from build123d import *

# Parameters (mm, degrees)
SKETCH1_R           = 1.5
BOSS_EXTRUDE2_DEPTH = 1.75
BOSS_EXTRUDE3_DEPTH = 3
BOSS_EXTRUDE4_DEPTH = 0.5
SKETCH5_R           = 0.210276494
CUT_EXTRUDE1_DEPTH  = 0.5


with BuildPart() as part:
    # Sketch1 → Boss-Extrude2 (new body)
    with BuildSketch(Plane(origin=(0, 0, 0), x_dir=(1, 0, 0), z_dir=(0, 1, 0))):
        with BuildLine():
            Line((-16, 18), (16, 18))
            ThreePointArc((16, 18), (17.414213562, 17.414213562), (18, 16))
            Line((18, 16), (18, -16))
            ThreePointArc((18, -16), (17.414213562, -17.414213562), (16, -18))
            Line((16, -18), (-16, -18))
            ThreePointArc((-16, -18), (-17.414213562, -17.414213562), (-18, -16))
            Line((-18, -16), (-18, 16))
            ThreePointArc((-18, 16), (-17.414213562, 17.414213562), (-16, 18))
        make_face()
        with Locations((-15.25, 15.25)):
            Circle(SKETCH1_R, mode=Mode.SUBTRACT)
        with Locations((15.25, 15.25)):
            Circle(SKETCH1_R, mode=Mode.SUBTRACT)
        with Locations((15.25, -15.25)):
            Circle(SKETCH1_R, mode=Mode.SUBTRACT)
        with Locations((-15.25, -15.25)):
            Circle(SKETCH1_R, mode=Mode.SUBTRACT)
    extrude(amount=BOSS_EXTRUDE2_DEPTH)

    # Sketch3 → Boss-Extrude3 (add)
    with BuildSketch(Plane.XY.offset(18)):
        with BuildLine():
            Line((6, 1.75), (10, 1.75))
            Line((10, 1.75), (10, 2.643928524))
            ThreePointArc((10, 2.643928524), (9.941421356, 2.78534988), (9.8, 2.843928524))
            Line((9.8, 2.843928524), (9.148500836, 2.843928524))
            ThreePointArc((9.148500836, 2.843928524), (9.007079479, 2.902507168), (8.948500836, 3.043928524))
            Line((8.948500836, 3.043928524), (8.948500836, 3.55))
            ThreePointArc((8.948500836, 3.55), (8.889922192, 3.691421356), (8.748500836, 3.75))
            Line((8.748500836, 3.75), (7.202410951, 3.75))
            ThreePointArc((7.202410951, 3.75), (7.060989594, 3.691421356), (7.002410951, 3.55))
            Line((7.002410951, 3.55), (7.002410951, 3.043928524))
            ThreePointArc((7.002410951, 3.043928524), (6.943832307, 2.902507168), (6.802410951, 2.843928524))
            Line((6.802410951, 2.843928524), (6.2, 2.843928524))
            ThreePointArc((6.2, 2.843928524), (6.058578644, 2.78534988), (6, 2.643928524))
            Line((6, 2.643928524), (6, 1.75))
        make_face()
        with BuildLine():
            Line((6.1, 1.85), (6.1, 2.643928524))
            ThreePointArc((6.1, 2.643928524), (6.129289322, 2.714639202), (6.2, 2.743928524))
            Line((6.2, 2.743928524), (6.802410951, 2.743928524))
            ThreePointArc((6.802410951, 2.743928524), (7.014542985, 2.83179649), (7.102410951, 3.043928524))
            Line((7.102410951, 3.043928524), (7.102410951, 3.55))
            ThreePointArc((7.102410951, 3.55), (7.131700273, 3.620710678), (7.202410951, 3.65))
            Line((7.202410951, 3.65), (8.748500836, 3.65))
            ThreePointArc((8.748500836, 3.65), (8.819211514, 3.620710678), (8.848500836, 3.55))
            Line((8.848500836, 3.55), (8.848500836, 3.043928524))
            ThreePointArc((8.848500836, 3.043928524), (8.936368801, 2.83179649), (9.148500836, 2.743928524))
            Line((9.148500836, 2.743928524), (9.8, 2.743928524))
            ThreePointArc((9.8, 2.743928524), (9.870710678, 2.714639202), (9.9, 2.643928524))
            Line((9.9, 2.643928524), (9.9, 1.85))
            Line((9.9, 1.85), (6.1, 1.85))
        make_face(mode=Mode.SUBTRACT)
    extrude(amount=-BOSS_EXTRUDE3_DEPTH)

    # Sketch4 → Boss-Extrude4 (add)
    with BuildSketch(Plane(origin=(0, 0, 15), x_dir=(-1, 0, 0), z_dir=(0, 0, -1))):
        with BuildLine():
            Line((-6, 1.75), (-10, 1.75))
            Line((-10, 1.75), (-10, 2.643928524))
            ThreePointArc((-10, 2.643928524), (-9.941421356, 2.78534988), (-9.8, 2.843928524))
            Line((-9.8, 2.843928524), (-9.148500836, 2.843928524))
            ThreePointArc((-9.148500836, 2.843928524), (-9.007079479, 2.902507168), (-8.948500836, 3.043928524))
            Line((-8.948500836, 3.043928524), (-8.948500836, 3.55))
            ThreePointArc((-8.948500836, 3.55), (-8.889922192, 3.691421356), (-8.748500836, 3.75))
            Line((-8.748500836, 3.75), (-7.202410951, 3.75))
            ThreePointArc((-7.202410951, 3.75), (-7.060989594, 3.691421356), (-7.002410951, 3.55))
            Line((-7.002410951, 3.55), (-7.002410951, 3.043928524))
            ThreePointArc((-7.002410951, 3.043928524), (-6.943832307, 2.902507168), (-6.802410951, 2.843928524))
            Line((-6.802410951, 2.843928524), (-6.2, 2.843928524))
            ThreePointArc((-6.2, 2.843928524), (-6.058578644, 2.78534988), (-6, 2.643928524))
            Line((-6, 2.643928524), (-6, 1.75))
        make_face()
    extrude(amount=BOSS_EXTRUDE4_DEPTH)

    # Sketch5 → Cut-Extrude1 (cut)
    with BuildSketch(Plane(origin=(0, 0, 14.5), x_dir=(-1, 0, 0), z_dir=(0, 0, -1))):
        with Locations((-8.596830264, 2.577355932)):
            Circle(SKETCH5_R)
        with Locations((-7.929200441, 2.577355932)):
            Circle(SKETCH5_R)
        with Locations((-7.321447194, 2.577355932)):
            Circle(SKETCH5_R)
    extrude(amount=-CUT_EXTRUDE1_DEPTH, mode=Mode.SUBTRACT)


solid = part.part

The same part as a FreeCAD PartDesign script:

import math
import FreeCAD as App
import Part
import Sketcher
from FreeCAD import Vector
Q = App.Units.Quantity

doc = App.newDocument("Part")
body = doc.addObject("PartDesign::Body", "Body")

sketch1 = body.newObject("Sketcher::SketchObject", "Sketch")
sketch1.AttachmentSupport = (doc.getObject("XZ_Plane"), [""])
sketch1.MapMode = "FlatFace"
sketch1.addGeometry([
    Part.LineSegment(Vector(16, -18, 0), Vector(-16, -18, 0)),
    Part.ArcOfCircle(Part.Circle(Vector(-16, -16, 0), Vector(0, 0, 1), 2), math.radians(-180), math.radians(-90)),
    Part.LineSegment(Vector(-18, -16, 0), Vector(-18, 16, 0)),
    Part.ArcOfCircle(Part.Circle(Vector(-16, 16, 0), Vector(0, 0, 1), 2), math.radians(90), math.radians(180)),
    Part.LineSegment(Vector(-16, 18, 0), Vector(16, 18, 0)),
    Part.ArcOfCircle(Part.Circle(Vector(16, 16, 0), Vector(0, 0, 1), 2), math.radians(0), math.radians(90)),
    Part.LineSegment(Vector(18, 16, 0), Vector(18, -16, 0)),
    Part.ArcOfCircle(Part.Circle(Vector(16, -16, 0), Vector(0, 0, 1), 2), math.radians(-90), math.radians(0)),
    Part.Circle(Vector(15.2, 15.2, 0), Vector(0, 0, 1), 1.5),
    Part.Circle(Vector(-15.2, 15.2, 0), Vector(0, 0, 1), 1.5),
    Part.Circle(Vector(15.2, -15.2, 0), Vector(0, 0, 1), 1.5),
    Part.Circle(Vector(-15.2, -15.2, 0), Vector(0, 0, 1), 1.5),
], False)
sketch1.addConstraint([
    Sketcher.Constraint("Tangent", 0, 2, 1, 2),
    Sketcher.Constraint("Tangent", 1, 1, 2, 1),
    Sketcher.Constraint("Tangent", 2, 2, 3, 2),
    Sketcher.Constraint("Tangent", 3, 1, 4, 1),
    Sketcher.Constraint("Tangent", 4, 2, 5, 2),
    Sketcher.Constraint("Tangent", 5, 1, 6, 1),
    Sketcher.Constraint("Tangent", 6, 2, 7, 2),
    Sketcher.Constraint("Tangent", 7, 1, 0, 1),
    Sketcher.Constraint("Horizontal", 0),
    Sketcher.Constraint("Vertical", 2),
    Sketcher.Constraint("Horizontal", 4),
    Sketcher.Constraint("Vertical", 6),
    Sketcher.Constraint("Equal", 1, 3),
    Sketcher.Constraint("Equal", 3, 5),
    Sketcher.Constraint("Equal", 5, 7),
    Sketcher.Constraint("Equal", 8, 9),
    Sketcher.Constraint("Equal", 9, 10),
    Sketcher.Constraint("Equal", 10, 11),
    Sketcher.Constraint("Symmetric", 1, 3, 5, 3, -1, 1),
    Sketcher.Constraint("Symmetric", 9, 3, 10, 3, -1, 1),
    Sketcher.Constraint("Symmetric", 8, 3, 11, 3, -1, 1),
    Sketcher.Constraint("Symmetric", 8, 3, 9, 3, -2),
    Sketcher.Constraint("Equal", 4, 2),
    Sketcher.Constraint("Diameter", 8, Q("3 mm")),
    Sketcher.Constraint("Radius", 1, Q("2 mm")),
    Sketcher.Constraint("DistanceX", 0, 2, 0, 1, Q("32 mm")),
    Sketcher.Constraint("DistanceX", 9, 3, 8, 3, Q("30.5 mm")),
    Sketcher.Constraint("DistanceY", 10, 3, 8, 3, Q("30.5 mm")),
])
pad1 = body.newObject("PartDesign::Pad", "Pad")
pad1.Profile = sketch1
pad1.Length = 1.75
pad1.Reversed = True

sketch2 = body.newObject("Sketcher::SketchObject", "Sketch001")
sketch2.AttachmentSupport = (doc.getObject("XY_Plane"), [""])
sketch2.MapMode = "FlatFace"
sketch2.AttachmentOffset = App.Placement(Vector(0, 0, 18), App.Rotation())
sketch2.addGeometry([
    Part.LineSegment(Vector(6, 1.75, 0), Vector(10, 1.75, 0)),
    Part.LineSegment(Vector(10, 1.75, 0), Vector(10, 2.64, 0)),
    Part.ArcOfCircle(Part.Circle(Vector(9.8, 2.64, 0), Vector(0, 0, 1), 0.2), math.radians(0), math.radians(90)),
    Part.LineSegment(Vector(9.8, 2.84, 0), Vector(9.15, 2.84, 0)),
    Part.ArcOfCircle(Part.Circle(Vector(9.15, 3.04, 0), Vector(0, 0, 1), 0.2), math.radians(180), math.radians(270)),
    Part.LineSegment(Vector(8.95, 3.04, 0), Vector(8.95, 3.55, 0)),
    Part.ArcOfCircle(Part.Circle(Vector(8.75, 3.55, 0), Vector(0, 0, 1), 0.2), math.radians(0), math.radians(90)),
    Part.LineSegment(Vector(8.75, 3.75, 0), Vector(7.2, 3.75, 0)),
    Part.ArcOfCircle(Part.Circle(Vector(7.2, 3.55, 0), Vector(0, 0, 1), 0.2), math.radians(90), math.radians(180)),
    Part.LineSegment(Vector(7, 3.55, 0), Vector(7, 3.04, 0)),
    Part.ArcOfCircle(Part.Circle(Vector(6.8, 3.04, 0), Vector(0, 0, 1), 0.2), math.radians(-90), math.radians(0)),
    Part.LineSegment(Vector(6.8, 2.84, 0), Vector(6.2, 2.84, 0)),
    Part.ArcOfCircle(Part.Circle(Vector(6.2, 2.64, 0), Vector(0, 0, 1), 0.2), math.radians(90), math.radians(180)),
    Part.LineSegment(Vector(6, 2.64, 0), Vector(6, 1.75, 0)),
    Part.LineSegment(Vector(9.9, 1.85, 0), Vector(6.1, 1.85, 0)),
    Part.LineSegment(Vector(6.1, 1.85, 0), Vector(6.1, 2.64, 0)),
    Part.ArcOfCircle(Part.Circle(Vector(6.2, 2.64, 0), Vector(0, 0, 1), 0.1), math.radians(90), math.radians(180)),
    Part.LineSegment(Vector(6.2, 2.74, 0), Vector(6.8, 2.74, 0)),
    Part.ArcOfCircle(Part.Circle(Vector(6.8, 3.04, 0), Vector(0, 0, 1), 0.3), math.radians(-90), math.radians(0)),
    Part.LineSegment(Vector(7.1, 3.04, 0), Vector(7.1, 3.55, 0)),
    Part.ArcOfCircle(Part.Circle(Vector(7.2, 3.55, 0), Vector(0, 0, 1), 0.1), math.radians(90), math.radians(180)),
    Part.LineSegment(Vector(7.2, 3.65, 0), Vector(8.75, 3.65, 0)),
    Part.ArcOfCircle(Part.Circle(Vector(8.75, 3.55, 0), Vector(0, 0, 1), 0.1), math.radians(0), math.radians(90)),
    Part.LineSegment(Vector(8.85, 3.55, 0), Vector(8.85, 3.04, 0)),
    Part.ArcOfCircle(Part.Circle(Vector(9.15, 3.04, 0), Vector(0, 0, 1), 0.3), math.radians(180), math.radians(270)),
    Part.LineSegment(Vector(9.15, 2.74, 0), Vector(9.8, 2.74, 0)),
    Part.ArcOfCircle(Part.Circle(Vector(9.8, 2.64, 0), Vector(0, 0, 1), 0.1), math.radians(0), math.radians(90)),
    Part.LineSegment(Vector(9.9, 2.64, 0), Vector(9.9, 1.85, 0)),
], False)
sketch2.addConstraint([
    Sketcher.Constraint("Coincident", 0, 2, 1, 1),
    Sketcher.Constraint("Tangent", 1, 2, 2, 1),
    Sketcher.Constraint("Tangent", 2, 2, 3, 1),
    Sketcher.Constraint("Tangent", 3, 2, 4, 2),
    Sketcher.Constraint("Tangent", 4, 1, 5, 1),
    Sketcher.Constraint("Tangent", 5, 2, 6, 1),
    Sketcher.Constraint("Tangent", 6, 2, 7, 1),
    Sketcher.Constraint("Tangent", 7, 2, 8, 1),
    Sketcher.Constraint("Tangent", 8, 2, 9, 1),
    Sketcher.Constraint("Tangent", 9, 2, 10, 2),
    Sketcher.Constraint("Tangent", 10, 1, 11, 1),
    Sketcher.Constraint("Tangent", 11, 2, 12, 1),
    Sketcher.Constraint("Tangent", 12, 2, 13, 1),
    Sketcher.Constraint("Coincident", 13, 2, 0, 1),
    Sketcher.Constraint("Coincident", 14, 2, 15, 1),
    Sketcher.Constraint("Tangent", 15, 2, 16, 2),
    Sketcher.Constraint("Tangent", 16, 1, 17, 1),
    Sketcher.Constraint("Tangent", 17, 2, 18, 1),
    Sketcher.Constraint("Tangent", 18, 2, 19, 1),
    Sketcher.Constraint("Tangent", 19, 2, 20, 2),
    Sketcher.Constraint("Tangent", 20, 1, 21, 1),
    Sketcher.Constraint("Tangent", 21, 2, 22, 2),
    Sketcher.Constraint("Tangent", 22, 1, 23, 1),
    Sketcher.Constraint("Tangent", 23, 2, 24, 1),
    Sketcher.Constraint("Tangent", 24, 2, 25, 1),
    Sketcher.Constraint("Tangent", 25, 2, 26, 2),
    Sketcher.Constraint("Tangent", 26, 1, 27, 1),
    Sketcher.Constraint("Coincident", 27, 2, 14, 1),
    Sketcher.Constraint("Horizontal", 0),
    Sketcher.Constraint("Vertical", 1),
    Sketcher.Constraint("Horizontal", 3),
    Sketcher.Constraint("Vertical", 5),
    Sketcher.Constraint("Horizontal", 7),
    Sketcher.Constraint("Vertical", 9),
    Sketcher.Constraint("Horizontal", 11),
    Sketcher.Constraint("Vertical", 13),
    Sketcher.Constraint("Horizontal", 14),
    Sketcher.Constraint("Vertical", 15),
    Sketcher.Constraint("Horizontal", 17),
    Sketcher.Constraint("Vertical", 19),
    Sketcher.Constraint("Horizontal", 21),
    Sketcher.Constraint("Vertical", 23),
    Sketcher.Constraint("Horizontal", 25),
    Sketcher.Constraint("Vertical", 27),
    Sketcher.Constraint("Coincident", 16, 3, 12, 3),
    Sketcher.Constraint("Coincident", 18, 3, 10, 3),
    Sketcher.Constraint("Coincident", 20, 3, 8, 3),
    Sketcher.Constraint("Coincident", 22, 3, 6, 3),
    Sketcher.Constraint("Coincident", 24, 3, 4, 3),
    Sketcher.Constraint("Coincident", 26, 3, 2, 3),
    Sketcher.Constraint("Equal", 2, 4),
    Sketcher.Constraint("Equal", 4, 6),
    Sketcher.Constraint("Equal", 6, 8),
    Sketcher.Constraint("Equal", 8, 10),
    Sketcher.Constraint("Equal", 10, 12),
    Sketcher.Constraint("Horizontal", 4, 3, 10, 3),
    Sketcher.Constraint("Radius", 2, Q("0.2 mm")),
    Sketcher.Constraint("Radius", 16, Q("0.1 mm")),
    Sketcher.Constraint("DistanceX", 0, 1, 0, 2, Q("4 mm")),
    Sketcher.Constraint("DistanceX", -1, 1, 0, 2, Q("10 mm")),
    Sketcher.Constraint("DistanceY", 0, 2, 6, 3, Q("1.8 mm")),
    Sketcher.Constraint("DistanceY", 13, 2, 14, 2, Q("0.1 mm")),
    Sketcher.Constraint("DistanceY", -1, 1, 6, 3, Q("3.55 mm")),
    Sketcher.Constraint("DistanceX", 3, 2, 3, 1, Q("0.651499 mm")),
    Sketcher.Constraint("DistanceX", 7, 2, 7, 1, Q("1.54609 mm")),
    Sketcher.Constraint("DistanceY", 1, 1, 1, 2, Q("0.893929 mm")),
])
pad2 = body.newObject("PartDesign::Pad", "Pad001")
pad2.Profile = sketch2
pad2.Length = 3
pad2.Reversed = True

sketch3 = body.newObject("Sketcher::SketchObject", "Sketch002")
sketch3.AttachmentSupport = (doc.getObject("XY_Plane"), [""])
sketch3.MapMode = "FlatFace"
sketch3.AttachmentOffset = App.Placement(Vector(0, 0, 15), App.Rotation())
sketch3.addGeometry([
    Part.LineSegment(Vector(10, 1.75, 0), Vector(6, 1.75, 0)),
    Part.LineSegment(Vector(6, 1.75, 0), Vector(6, 2.64, 0)),
    Part.ArcOfCircle(Part.Circle(Vector(6.2, 2.64, 0), Vector(0, 0, 1), 0.2), math.radians(90), math.radians(180)),
    Part.LineSegment(Vector(6.2, 2.84, 0), Vector(6.8, 2.84, 0)),
    Part.ArcOfCircle(Part.Circle(Vector(6.8, 3.04, 0), Vector(0, 0, 1), 0.2), math.radians(-90), math.radians(0)),
    Part.LineSegment(Vector(7, 3.04, 0), Vector(7, 3.55, 0)),
    Part.ArcOfCircle(Part.Circle(Vector(7.2, 3.55, 0), Vector(0, 0, 1), 0.2), math.radians(90), math.radians(180)),
    Part.LineSegment(Vector(7.2, 3.75, 0), Vector(8.75, 3.75, 0)),
    Part.ArcOfCircle(Part.Circle(Vector(8.75, 3.55, 0), Vector(0, 0, 1), 0.2), math.radians(0), math.radians(90)),
    Part.LineSegment(Vector(8.95, 3.55, 0), Vector(8.95, 3.04, 0)),
    Part.ArcOfCircle(Part.Circle(Vector(9.15, 3.04, 0), Vector(0, 0, 1), 0.2), math.radians(180), math.radians(270)),
    Part.LineSegment(Vector(9.15, 2.84, 0), Vector(9.8, 2.84, 0)),
    Part.ArcOfCircle(Part.Circle(Vector(9.8, 2.64, 0), Vector(0, 0, 1), 0.2), math.radians(0), math.radians(90)),
    Part.LineSegment(Vector(10, 2.64, 0), Vector(10, 1.75, 0)),
], False)
sketch3.addConstraint([
    Sketcher.Constraint("Coincident", 0, 2, 1, 1),
    Sketcher.Constraint("Tangent", 1, 2, 2, 2),
    Sketcher.Constraint("Tangent", 2, 1, 3, 1),
    Sketcher.Constraint("Tangent", 3, 2, 4, 1),
    Sketcher.Constraint("Tangent", 4, 2, 5, 1),
    Sketcher.Constraint("Tangent", 5, 2, 6, 2),
    Sketcher.Constraint("Tangent", 6, 1, 7, 1),
    Sketcher.Constraint("Tangent", 7, 2, 8, 2),
    Sketcher.Constraint("Tangent", 8, 1, 9, 1),
    Sketcher.Constraint("Tangent", 9, 2, 10, 1),
    Sketcher.Constraint("Tangent", 10, 2, 11, 1),
    Sketcher.Constraint("Tangent", 11, 2, 12, 2),
    Sketcher.Constraint("Tangent", 12, 1, 13, 1),
    Sketcher.Constraint("Coincident", 13, 2, 0, 1),
    Sketcher.Constraint("Horizontal", 0),
    Sketcher.Constraint("Vertical", 1),
    Sketcher.Constraint("Horizontal", 3),
    Sketcher.Constraint("Vertical", 5),
    Sketcher.Constraint("Horizontal", 7),
    Sketcher.Constraint("Vertical", 9),
    Sketcher.Constraint("Horizontal", 11),
    Sketcher.Constraint("Vertical", 13),
    Sketcher.Constraint("Equal", 2, 4),
    Sketcher.Constraint("Equal", 4, 6),
    Sketcher.Constraint("Equal", 6, 8),
    Sketcher.Constraint("Equal", 8, 10),
    Sketcher.Constraint("Equal", 10, 12),
    Sketcher.Constraint("Horizontal", 4, 3, 10, 3),
    Sketcher.Constraint("Radius", 2, Q("0.2 mm")),
    Sketcher.Constraint("DistanceX", 0, 2, 0, 1, Q("4 mm")),
    Sketcher.Constraint("DistanceX", -1, 1, 0, 2, Q("6 mm")),
    Sketcher.Constraint("DistanceY", 0, 2, 6, 3, Q("1.8 mm")),
    Sketcher.Constraint("DistanceY", -1, 1, 6, 3, Q("3.55 mm")),
    Sketcher.Constraint("DistanceX", 11, 1, 11, 2, Q("0.651499 mm")),
    Sketcher.Constraint("DistanceX", 3, 1, 3, 2, Q("0.602411 mm")),
    Sketcher.Constraint("DistanceY", 1, 1, 1, 2, Q("0.893929 mm")),
])
pad3 = body.newObject("PartDesign::Pad", "Pad002")
pad3.Profile = sketch3
pad3.Length = 0.5
pad3.Reversed = True

sketch4 = body.newObject("Sketcher::SketchObject", "Sketch003")
sketch4.AttachmentSupport = (doc.getObject("XY_Plane"), [""])
sketch4.MapMode = "FlatFace"
sketch4.AttachmentOffset = App.Placement(Vector(0, 0, 14.5), App.Rotation())
sketch4.addGeometry([
    Part.Circle(Vector(8.6, 2.58, 0), Vector(0, 0, 1), 0.21),
    Part.Circle(Vector(7.93, 2.58, 0), Vector(0, 0, 1), 0.21),
    Part.Circle(Vector(7.32, 2.58, 0), Vector(0, 0, 1), 0.21),
], False)
sketch4.addConstraint([
    Sketcher.Constraint("Equal", 0, 1),
    Sketcher.Constraint("Equal", 1, 2),
    Sketcher.Constraint("Horizontal", 0, 3, 1, 3),
    Sketcher.Constraint("Horizontal", 1, 3, 2, 3),
    Sketcher.Constraint("Diameter", 0, Q("0.420553 mm")),
    Sketcher.Constraint("DistanceX", -1, 1, 1, 3, Q("7.9292 mm")),
    Sketcher.Constraint("DistanceX", -1, 1, 0, 3, Q("8.59683 mm")),
    Sketcher.Constraint("DistanceY", -1, 1, 0, 3, Q("2.577356 mm")),
    Sketcher.Constraint("DistanceX", -1, 1, 2, 3, Q("7.321447 mm")),
])
pocket1 = body.newObject("PartDesign::Pocket", "Pocket")
pocket1.Profile = sketch4
pocket1.Length = 0.5
pocket1.Reversed = True

doc.recompute()
